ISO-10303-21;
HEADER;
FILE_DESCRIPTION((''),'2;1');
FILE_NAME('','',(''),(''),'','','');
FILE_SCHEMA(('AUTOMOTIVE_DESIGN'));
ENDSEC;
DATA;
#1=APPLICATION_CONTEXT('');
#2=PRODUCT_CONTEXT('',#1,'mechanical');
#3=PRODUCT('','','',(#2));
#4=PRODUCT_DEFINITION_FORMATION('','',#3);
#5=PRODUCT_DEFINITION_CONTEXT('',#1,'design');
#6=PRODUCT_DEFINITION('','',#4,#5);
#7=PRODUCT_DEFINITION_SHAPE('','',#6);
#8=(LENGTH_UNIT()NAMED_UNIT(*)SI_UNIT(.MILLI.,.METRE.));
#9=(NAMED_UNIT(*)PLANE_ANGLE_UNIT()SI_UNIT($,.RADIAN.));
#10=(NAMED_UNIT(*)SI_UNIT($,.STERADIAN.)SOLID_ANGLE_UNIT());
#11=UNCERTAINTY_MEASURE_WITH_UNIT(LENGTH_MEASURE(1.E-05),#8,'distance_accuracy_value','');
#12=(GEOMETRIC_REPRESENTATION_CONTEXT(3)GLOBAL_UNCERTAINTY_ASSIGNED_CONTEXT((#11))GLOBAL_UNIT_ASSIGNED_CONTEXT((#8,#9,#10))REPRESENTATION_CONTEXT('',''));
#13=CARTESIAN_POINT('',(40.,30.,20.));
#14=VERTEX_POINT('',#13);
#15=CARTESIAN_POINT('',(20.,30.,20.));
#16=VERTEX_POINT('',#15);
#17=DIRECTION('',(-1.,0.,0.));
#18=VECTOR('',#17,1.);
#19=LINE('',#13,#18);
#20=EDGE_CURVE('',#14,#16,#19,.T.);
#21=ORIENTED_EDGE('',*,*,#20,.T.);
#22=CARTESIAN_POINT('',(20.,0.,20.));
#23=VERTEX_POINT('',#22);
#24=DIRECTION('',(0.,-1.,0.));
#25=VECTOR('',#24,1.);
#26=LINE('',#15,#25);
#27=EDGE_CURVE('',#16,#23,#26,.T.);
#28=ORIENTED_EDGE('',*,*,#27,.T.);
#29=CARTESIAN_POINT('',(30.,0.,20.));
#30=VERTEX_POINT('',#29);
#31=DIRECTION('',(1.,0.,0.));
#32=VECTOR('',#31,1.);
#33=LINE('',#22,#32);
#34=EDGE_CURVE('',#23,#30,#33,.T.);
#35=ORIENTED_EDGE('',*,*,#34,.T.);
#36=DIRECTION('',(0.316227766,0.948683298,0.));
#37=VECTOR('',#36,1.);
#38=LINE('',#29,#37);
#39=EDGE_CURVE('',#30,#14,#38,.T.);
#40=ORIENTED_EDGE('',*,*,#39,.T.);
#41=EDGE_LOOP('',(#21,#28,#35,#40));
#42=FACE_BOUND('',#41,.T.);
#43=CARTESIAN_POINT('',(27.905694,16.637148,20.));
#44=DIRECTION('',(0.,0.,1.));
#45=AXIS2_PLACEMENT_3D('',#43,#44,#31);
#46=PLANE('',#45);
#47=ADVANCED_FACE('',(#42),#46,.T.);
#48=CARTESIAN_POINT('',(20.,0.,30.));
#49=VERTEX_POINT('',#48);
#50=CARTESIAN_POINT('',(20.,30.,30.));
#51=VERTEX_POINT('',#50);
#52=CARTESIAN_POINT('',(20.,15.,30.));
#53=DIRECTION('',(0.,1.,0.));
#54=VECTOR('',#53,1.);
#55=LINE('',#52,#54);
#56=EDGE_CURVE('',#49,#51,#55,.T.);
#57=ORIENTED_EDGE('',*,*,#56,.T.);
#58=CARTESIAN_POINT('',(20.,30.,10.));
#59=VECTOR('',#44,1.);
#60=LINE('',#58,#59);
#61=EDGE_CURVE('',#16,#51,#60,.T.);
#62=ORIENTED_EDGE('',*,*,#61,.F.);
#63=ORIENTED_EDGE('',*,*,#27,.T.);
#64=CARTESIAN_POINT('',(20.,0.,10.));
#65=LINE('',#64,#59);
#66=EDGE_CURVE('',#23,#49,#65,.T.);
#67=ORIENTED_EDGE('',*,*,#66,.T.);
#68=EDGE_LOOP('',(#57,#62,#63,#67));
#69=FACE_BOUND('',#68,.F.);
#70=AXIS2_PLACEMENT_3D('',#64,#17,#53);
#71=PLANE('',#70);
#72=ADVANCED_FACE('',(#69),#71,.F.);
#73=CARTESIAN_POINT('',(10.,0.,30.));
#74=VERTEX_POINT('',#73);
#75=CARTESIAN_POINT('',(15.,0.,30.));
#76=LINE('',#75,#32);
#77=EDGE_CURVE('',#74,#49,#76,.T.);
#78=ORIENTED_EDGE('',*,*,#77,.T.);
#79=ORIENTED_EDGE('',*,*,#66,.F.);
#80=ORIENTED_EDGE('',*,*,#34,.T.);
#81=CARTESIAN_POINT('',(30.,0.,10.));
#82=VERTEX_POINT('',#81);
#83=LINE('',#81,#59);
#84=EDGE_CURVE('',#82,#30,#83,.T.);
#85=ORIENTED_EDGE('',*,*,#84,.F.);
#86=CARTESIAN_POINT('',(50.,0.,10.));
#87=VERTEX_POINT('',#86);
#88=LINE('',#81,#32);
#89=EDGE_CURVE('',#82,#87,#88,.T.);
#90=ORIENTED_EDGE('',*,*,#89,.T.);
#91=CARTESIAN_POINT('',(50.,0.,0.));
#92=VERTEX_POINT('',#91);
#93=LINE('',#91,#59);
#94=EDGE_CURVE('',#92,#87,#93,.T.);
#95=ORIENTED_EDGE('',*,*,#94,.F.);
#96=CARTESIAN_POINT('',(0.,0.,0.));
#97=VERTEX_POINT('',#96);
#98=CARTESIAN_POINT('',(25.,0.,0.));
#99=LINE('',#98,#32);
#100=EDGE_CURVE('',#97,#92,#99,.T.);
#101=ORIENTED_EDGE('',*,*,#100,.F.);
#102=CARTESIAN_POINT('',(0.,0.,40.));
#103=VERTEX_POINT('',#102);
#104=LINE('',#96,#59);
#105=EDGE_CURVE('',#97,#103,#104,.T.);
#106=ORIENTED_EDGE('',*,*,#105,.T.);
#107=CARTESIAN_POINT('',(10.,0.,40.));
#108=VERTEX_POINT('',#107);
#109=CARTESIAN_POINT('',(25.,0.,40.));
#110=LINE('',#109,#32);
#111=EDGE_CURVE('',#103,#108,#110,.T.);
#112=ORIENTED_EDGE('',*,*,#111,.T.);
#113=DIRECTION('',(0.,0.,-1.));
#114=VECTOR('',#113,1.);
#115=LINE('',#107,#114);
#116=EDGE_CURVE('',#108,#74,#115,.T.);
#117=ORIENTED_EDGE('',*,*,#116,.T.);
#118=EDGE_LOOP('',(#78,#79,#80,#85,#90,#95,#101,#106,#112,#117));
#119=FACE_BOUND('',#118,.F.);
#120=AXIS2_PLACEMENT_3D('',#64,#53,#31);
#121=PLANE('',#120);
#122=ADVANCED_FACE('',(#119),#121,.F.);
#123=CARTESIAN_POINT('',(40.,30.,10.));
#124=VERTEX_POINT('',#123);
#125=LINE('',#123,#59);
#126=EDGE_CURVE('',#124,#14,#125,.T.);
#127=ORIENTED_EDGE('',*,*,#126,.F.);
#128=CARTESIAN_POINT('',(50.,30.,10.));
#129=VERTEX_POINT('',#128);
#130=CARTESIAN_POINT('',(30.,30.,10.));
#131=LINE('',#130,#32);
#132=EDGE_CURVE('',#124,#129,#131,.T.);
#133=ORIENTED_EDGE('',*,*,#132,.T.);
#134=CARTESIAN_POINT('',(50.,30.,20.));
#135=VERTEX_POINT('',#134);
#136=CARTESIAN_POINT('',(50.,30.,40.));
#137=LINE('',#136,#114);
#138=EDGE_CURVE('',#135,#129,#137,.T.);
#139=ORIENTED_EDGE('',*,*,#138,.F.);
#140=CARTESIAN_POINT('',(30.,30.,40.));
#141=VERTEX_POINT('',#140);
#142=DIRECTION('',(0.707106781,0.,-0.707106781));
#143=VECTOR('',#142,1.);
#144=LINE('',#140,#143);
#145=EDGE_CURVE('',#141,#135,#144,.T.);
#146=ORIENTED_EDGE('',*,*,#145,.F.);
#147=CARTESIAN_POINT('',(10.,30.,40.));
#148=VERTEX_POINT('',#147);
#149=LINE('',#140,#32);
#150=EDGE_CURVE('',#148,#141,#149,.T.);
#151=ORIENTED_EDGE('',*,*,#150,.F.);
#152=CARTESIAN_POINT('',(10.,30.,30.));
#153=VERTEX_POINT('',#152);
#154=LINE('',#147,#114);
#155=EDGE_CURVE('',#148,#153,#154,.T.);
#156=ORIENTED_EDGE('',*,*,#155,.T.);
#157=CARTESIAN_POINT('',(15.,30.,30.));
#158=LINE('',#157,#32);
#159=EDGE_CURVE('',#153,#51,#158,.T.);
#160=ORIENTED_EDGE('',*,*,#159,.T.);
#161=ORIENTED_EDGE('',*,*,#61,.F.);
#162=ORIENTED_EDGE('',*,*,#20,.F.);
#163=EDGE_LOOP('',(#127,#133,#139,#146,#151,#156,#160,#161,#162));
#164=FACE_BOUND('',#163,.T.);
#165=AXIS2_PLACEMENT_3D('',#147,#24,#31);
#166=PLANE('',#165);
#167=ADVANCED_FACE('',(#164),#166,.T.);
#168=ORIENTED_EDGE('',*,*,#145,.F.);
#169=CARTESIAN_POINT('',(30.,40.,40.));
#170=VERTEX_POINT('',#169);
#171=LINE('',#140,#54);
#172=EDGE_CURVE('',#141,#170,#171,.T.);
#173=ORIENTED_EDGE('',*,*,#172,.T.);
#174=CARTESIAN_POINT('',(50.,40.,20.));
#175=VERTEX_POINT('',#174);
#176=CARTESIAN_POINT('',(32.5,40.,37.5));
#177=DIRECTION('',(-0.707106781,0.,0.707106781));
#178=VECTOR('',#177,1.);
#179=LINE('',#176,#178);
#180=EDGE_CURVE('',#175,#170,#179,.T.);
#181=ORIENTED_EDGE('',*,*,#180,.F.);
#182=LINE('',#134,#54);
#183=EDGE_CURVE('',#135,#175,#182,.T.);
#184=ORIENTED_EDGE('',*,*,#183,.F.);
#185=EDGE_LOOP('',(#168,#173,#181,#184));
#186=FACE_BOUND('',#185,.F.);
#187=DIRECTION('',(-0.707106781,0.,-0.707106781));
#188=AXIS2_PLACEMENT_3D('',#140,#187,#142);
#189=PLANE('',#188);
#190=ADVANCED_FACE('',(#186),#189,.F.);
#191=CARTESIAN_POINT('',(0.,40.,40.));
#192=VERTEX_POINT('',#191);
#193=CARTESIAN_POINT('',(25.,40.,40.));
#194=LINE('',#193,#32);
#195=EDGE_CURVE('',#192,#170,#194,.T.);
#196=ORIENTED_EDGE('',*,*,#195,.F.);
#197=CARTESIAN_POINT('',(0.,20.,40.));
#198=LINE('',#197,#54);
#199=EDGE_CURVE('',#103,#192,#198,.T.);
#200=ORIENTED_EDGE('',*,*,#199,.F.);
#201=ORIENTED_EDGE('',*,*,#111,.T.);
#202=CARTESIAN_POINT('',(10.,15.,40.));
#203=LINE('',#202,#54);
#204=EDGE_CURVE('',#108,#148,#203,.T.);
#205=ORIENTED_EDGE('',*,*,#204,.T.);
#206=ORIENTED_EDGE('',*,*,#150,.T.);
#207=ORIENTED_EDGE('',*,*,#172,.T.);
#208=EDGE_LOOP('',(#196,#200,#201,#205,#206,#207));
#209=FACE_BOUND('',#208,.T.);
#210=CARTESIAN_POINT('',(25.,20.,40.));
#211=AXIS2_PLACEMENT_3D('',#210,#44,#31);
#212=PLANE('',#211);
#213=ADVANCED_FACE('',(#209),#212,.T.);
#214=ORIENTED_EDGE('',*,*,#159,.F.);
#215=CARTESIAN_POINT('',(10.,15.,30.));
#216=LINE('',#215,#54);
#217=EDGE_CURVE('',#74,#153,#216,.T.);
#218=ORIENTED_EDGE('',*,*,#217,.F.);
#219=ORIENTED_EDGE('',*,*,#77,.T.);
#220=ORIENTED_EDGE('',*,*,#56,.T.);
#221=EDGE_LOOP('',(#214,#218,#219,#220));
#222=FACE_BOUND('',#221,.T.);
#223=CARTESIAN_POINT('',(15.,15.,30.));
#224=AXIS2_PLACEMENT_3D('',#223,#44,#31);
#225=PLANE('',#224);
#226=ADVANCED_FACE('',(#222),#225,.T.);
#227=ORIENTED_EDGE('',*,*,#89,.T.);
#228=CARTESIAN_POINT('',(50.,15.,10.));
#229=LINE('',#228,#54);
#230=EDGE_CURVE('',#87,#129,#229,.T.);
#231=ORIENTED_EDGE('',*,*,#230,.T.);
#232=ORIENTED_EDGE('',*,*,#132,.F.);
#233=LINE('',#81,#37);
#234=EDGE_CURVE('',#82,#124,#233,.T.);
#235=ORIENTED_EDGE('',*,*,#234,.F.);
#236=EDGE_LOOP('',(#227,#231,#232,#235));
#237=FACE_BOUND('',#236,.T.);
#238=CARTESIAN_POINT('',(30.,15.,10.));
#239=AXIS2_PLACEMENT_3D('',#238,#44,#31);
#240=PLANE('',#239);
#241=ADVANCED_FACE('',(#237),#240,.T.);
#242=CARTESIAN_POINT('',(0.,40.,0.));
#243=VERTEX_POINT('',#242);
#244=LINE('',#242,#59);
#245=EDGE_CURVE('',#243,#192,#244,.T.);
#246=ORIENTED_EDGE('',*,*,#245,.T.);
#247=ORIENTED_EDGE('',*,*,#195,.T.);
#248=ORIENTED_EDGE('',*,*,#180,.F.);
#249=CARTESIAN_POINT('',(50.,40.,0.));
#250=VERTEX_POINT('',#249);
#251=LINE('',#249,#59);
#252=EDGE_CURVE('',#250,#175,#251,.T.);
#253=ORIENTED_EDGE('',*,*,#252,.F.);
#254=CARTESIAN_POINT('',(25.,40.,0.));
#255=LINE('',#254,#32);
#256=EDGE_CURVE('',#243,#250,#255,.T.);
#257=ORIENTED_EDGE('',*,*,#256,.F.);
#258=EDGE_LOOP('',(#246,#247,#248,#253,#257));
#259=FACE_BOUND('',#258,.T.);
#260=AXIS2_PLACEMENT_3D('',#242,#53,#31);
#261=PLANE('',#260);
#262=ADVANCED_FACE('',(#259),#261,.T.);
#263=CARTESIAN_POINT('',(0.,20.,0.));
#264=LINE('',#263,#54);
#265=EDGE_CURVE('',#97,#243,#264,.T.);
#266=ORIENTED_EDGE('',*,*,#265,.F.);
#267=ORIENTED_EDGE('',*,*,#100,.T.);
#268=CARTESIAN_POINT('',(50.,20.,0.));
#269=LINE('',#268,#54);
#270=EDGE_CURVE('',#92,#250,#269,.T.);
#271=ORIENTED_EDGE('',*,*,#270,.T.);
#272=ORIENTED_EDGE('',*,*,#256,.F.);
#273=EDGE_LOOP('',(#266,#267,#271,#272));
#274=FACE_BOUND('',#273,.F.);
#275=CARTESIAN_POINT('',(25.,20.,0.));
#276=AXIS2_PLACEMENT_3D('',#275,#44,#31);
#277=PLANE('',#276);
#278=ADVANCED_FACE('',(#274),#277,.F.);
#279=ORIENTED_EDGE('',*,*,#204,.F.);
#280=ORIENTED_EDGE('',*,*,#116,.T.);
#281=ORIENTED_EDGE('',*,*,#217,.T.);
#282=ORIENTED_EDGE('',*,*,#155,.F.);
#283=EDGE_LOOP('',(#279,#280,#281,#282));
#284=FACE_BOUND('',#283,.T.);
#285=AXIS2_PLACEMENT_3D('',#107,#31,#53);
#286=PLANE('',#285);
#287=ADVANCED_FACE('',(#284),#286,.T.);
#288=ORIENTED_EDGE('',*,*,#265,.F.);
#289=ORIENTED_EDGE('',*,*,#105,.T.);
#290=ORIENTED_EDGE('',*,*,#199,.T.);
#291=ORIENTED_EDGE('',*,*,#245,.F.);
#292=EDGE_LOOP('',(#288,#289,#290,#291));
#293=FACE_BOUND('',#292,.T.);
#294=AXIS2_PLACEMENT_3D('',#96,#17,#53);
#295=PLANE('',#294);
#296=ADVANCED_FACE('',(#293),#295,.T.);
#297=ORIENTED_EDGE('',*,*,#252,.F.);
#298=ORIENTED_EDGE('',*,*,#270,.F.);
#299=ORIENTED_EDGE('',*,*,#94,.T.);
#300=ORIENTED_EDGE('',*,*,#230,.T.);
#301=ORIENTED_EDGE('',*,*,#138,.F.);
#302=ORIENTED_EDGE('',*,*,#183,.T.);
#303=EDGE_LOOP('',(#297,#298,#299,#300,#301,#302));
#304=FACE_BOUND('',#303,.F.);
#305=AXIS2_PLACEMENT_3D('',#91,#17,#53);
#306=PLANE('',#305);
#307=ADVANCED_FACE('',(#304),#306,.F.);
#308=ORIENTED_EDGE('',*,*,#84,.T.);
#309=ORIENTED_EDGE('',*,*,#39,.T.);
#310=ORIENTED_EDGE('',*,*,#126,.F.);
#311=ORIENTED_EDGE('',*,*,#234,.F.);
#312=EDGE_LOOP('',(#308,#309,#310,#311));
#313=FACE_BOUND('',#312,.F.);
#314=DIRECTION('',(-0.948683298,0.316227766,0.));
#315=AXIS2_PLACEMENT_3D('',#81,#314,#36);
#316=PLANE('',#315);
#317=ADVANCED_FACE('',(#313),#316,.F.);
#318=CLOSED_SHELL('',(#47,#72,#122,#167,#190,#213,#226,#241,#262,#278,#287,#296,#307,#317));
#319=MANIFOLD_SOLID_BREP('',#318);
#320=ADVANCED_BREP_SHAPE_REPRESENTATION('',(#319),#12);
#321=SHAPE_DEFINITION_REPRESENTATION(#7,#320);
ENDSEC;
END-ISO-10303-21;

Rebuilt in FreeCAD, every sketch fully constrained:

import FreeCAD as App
import Part
import Sketcher

V = App.Vector
Q = App.Units.Quantity

doc = App.newDocument("Part")
body = doc.addObject("PartDesign::Body", "Body")

# Sketch on XY plane
sketch1 = doc.addObject("Sketcher::SketchObject", "Sketch")
body.addObject(sketch1)
sketch1.AttachmentSupport = (doc.XY_Plane, [""])
sketch1.MapMode = "FlatFace"
sketch1.addGeometry([
    Part.LineSegment(V(0, 40, 0), V(0, 0, 0)),
    Part.LineSegment(V(0, 0, 0), V(50, 0, 0)),
    Part.LineSegment(V(50, 0, 0), V(50, 40, 0)),
    Part.LineSegment(V(50, 40, 0), V(0, 40, 0)),
], False)
sketch1.addConstraint([
    Sketcher.Constraint("Coincident", 0, 2, 1, 1),
    Sketcher.Constraint("Coincident", 1, 2, 2, 1),
    Sketcher.Constraint("Coincident", 2, 2, 3, 1),
    Sketcher.Constraint("Coincident", 3, 2, 0, 1),
    Sketcher.Constraint("Vertical", 0),
    Sketcher.Constraint("Horizontal", 1),
    Sketcher.Constraint("Vertical", 2),
    Sketcher.Constraint("Horizontal", 3),
    Sketcher.Constraint("Coincident", 0, 2, -1, 1),
    Sketcher.Constraint("DistanceX", 1, 1, 1, 2, Q("50 mm")),
    Sketcher.Constraint("DistanceY", 0, 2, 0, 1, Q("40 mm")),
])
pad1 = doc.addObject("PartDesign::Pad", "Pad")
body.addObject(pad1)
pad1.Profile = sketch1
pad1.Length = 40

# Sketch on XY plane
sketch2 = doc.addObject("Sketcher::SketchObject", "Sketch001")
body.addObject(sketch2)
sketch2.AttachmentSupport = (doc.XY_Plane, [""])
sketch2.MapMode = "FlatFace"
sketch2.AttachmentOffset = App.Placement(V(0, 0, 40), App.Rotation())
sketch2.addGeometry([
    Part.LineSegment(V(10, 30, 0), V(10, 0, 0)),
    Part.LineSegment(V(10, 0, 0), V(50, 0, 0)),
    Part.LineSegment(V(50, 0, 0), V(50, 30, 0)),
    Part.LineSegment(V(50, 30, 0), V(10, 30, 0)),
], False)
sketch2.addConstraint([
    Sketcher.Constraint("Coincident", 0, 2, 1, 1),
    Sketcher.Constraint("Coincident", 1, 2, 2, 1),
    Sketcher.Constraint("Coincident", 2, 2, 3, 1),
    Sketcher.Constraint("Coincident", 3, 2, 0, 1),
    Sketcher.Constraint("Vertical", 0),
    Sketcher.Constraint("Horizontal", 1),
    Sketcher.Constraint("Vertical", 2),
    Sketcher.Constraint("Horizontal", 3),
    Sketcher.Constraint("PointOnObject", 0, 2, -1),
    Sketcher.Constraint("DistanceX", 1, 1, 1, 2, Q("40 mm")),
    Sketcher.Constraint("DistanceY", 0, 2, 0, 1, Q("30 mm")),
    Sketcher.Constraint("DistanceX", -1, 1, 0, 2, Q("10 mm")),
])
pocket1 = doc.addObject("PartDesign::Pocket", "Pocket")
body.addObject(pocket1)
pocket1.Profile = sketch2
pocket1.Length = 30

# Sketch on XZ plane
sketch3 = doc.addObject("Sketcher::SketchObject", "Sketch002")
body.addObject(sketch3)
sketch3.AttachmentSupport = (doc.XZ_Plane, [""])
sketch3.MapMode = "FlatFace"
sketch3.AttachmentOffset = App.Placement(V(0, 0, -30), App.Rotation())
sketch3.addGeometry([
    Part.LineSegment(V(50, 40, 0), V(30, 40, 0)),
    Part.LineSegment(V(30, 40, 0), V(50, 20, 0)),
    Part.LineSegment(V(50, 20, 0), V(50, 40, 0)),
], False)
sketch3.addConstraint([
    Sketcher.Constraint("Coincident", 0, 2, 1, 1),
    Sketcher.Constraint("Coincident", 1, 2, 2, 1),
    Sketcher.Constraint("Coincident", 2, 2, 0, 1),
    Sketcher.Constraint("Horizontal", 0),
    Sketcher.Constraint("Vertical", 2),
    Sketcher.Constraint("Equal", 0, 2),
    Sketcher.Constraint("DistanceX", 0, 2, 0, 1, Q("20 mm")),
    Sketcher.Constraint("DistanceX", -1, 1, 0, 2, Q("30 mm")),
    Sketcher.Constraint("DistanceY", -1, 1, 0, 2, Q("40 mm")),
])
pocket2 = doc.addObject("PartDesign::Pocket", "Pocket001")
body.addObject(pocket2)
pocket2.Profile = sketch3
pocket2.Type = "ThroughAll"

# Sketch on XY plane
sketch4 = doc.addObject("Sketcher::SketchObject", "Sketch003")
body.addObject(sketch4)
sketch4.AttachmentSupport = (doc.XY_Plane, [""])
sketch4.MapMode = "FlatFace"
sketch4.AttachmentOffset = App.Placement(V(0, 0, 10), App.Rotation())
sketch4.addGeometry([
    Part.LineSegment(V(10, 30, 0), V(10, 0, 0)),
    Part.LineSegment(V(10, 0, 0), V(20, 0, 0)),
    Part.LineSegment(V(20, 0, 0), V(20, 30, 0)),
    Part.LineSegment(V(20, 30, 0), V(10, 30, 0)),
], False)
sketch4.addConstraint([
    Sketcher.Constraint("Coincident", 0, 2, 1, 1),
    Sketcher.Constraint("Coincident", 1, 2, 2, 1),
    Sketcher.Constraint("Coincident", 2, 2, 3, 1),
    Sketcher.Constraint("Coincident", 3, 2, 0, 1),
    Sketcher.Constraint("Vertical", 0),
    Sketcher.Constraint("Horizontal", 1),
    Sketcher.Constraint("Vertical", 2),
    Sketcher.Constraint("Horizontal", 3),
    Sketcher.Constraint("PointOnObject", 0, 2, -1),
    Sketcher.Constraint("DistanceX", 1, 1, 1, 2, Q("10 mm")),
    Sketcher.Constraint("DistanceY", 0, 2, 0, 1, Q("30 mm")),
    Sketcher.Constraint("DistanceX", -1, 1, 0, 2, Q("10 mm")),
])
pad2 = doc.addObject("PartDesign::Pad", "Pad001")
body.addObject(pad2)
pad2.Profile = sketch4
pad2.Length = 20

# Sketch on XY plane
sketch5 = doc.addObject("Sketcher::SketchObject", "Sketch004")
body.addObject(sketch5)
sketch5.AttachmentSupport = (doc.XY_Plane, [""])
sketch5.MapMode = "FlatFace"
sketch5.AttachmentOffset = App.Placement(V(0, 0, 10), App.Rotation())
sketch5.addGeometry([
    Part.LineSegment(V(40, 30, 0), V(20, 30, 0)),
    Part.LineSegment(V(20, 30, 0), V(20, 0, 0)),
    Part.LineSegment(V(20, 0, 0), V(30, 0, 0)),
    Part.LineSegment(V(30, 0, 0), V(40, 30, 0)),
], False)
sketch5.addConstraint([
    Sketcher.Constraint("Coincident", 0, 2, 1, 1),
    Sketcher.Constraint("Coincident", 1, 2, 2, 1),
    Sketcher.Constraint("Coincident", 2, 2, 3, 1),
    Sketcher.Constraint("Coincident", 3, 2, 0, 1),
    Sketcher.Constraint("Horizontal", 0),
    Sketcher.Constraint("Vertical", 1),
    Sketcher.Constraint("Horizontal", 2),
    Sketcher.Constraint("PointOnObject", 1, 2, -1),
    Sketcher.Constraint("DistanceX", 0, 2, 0, 1, Q("20 mm")),
    Sketcher.Constraint("DistanceX", 2, 1, 2, 2, Q("10 mm")),
    Sketcher.Constraint("DistanceY", 1, 2, 1, 1, Q("30 mm")),
    Sketcher.Constraint("DistanceX", -1, 1, 0, 2, Q("20 mm")),
])
pad3 = doc.addObject("PartDesign::Pad", "Pad002")
body.addObject(pad3)
pad3.Profile = sketch5
pad3.Length = 10

doc.recompute()
